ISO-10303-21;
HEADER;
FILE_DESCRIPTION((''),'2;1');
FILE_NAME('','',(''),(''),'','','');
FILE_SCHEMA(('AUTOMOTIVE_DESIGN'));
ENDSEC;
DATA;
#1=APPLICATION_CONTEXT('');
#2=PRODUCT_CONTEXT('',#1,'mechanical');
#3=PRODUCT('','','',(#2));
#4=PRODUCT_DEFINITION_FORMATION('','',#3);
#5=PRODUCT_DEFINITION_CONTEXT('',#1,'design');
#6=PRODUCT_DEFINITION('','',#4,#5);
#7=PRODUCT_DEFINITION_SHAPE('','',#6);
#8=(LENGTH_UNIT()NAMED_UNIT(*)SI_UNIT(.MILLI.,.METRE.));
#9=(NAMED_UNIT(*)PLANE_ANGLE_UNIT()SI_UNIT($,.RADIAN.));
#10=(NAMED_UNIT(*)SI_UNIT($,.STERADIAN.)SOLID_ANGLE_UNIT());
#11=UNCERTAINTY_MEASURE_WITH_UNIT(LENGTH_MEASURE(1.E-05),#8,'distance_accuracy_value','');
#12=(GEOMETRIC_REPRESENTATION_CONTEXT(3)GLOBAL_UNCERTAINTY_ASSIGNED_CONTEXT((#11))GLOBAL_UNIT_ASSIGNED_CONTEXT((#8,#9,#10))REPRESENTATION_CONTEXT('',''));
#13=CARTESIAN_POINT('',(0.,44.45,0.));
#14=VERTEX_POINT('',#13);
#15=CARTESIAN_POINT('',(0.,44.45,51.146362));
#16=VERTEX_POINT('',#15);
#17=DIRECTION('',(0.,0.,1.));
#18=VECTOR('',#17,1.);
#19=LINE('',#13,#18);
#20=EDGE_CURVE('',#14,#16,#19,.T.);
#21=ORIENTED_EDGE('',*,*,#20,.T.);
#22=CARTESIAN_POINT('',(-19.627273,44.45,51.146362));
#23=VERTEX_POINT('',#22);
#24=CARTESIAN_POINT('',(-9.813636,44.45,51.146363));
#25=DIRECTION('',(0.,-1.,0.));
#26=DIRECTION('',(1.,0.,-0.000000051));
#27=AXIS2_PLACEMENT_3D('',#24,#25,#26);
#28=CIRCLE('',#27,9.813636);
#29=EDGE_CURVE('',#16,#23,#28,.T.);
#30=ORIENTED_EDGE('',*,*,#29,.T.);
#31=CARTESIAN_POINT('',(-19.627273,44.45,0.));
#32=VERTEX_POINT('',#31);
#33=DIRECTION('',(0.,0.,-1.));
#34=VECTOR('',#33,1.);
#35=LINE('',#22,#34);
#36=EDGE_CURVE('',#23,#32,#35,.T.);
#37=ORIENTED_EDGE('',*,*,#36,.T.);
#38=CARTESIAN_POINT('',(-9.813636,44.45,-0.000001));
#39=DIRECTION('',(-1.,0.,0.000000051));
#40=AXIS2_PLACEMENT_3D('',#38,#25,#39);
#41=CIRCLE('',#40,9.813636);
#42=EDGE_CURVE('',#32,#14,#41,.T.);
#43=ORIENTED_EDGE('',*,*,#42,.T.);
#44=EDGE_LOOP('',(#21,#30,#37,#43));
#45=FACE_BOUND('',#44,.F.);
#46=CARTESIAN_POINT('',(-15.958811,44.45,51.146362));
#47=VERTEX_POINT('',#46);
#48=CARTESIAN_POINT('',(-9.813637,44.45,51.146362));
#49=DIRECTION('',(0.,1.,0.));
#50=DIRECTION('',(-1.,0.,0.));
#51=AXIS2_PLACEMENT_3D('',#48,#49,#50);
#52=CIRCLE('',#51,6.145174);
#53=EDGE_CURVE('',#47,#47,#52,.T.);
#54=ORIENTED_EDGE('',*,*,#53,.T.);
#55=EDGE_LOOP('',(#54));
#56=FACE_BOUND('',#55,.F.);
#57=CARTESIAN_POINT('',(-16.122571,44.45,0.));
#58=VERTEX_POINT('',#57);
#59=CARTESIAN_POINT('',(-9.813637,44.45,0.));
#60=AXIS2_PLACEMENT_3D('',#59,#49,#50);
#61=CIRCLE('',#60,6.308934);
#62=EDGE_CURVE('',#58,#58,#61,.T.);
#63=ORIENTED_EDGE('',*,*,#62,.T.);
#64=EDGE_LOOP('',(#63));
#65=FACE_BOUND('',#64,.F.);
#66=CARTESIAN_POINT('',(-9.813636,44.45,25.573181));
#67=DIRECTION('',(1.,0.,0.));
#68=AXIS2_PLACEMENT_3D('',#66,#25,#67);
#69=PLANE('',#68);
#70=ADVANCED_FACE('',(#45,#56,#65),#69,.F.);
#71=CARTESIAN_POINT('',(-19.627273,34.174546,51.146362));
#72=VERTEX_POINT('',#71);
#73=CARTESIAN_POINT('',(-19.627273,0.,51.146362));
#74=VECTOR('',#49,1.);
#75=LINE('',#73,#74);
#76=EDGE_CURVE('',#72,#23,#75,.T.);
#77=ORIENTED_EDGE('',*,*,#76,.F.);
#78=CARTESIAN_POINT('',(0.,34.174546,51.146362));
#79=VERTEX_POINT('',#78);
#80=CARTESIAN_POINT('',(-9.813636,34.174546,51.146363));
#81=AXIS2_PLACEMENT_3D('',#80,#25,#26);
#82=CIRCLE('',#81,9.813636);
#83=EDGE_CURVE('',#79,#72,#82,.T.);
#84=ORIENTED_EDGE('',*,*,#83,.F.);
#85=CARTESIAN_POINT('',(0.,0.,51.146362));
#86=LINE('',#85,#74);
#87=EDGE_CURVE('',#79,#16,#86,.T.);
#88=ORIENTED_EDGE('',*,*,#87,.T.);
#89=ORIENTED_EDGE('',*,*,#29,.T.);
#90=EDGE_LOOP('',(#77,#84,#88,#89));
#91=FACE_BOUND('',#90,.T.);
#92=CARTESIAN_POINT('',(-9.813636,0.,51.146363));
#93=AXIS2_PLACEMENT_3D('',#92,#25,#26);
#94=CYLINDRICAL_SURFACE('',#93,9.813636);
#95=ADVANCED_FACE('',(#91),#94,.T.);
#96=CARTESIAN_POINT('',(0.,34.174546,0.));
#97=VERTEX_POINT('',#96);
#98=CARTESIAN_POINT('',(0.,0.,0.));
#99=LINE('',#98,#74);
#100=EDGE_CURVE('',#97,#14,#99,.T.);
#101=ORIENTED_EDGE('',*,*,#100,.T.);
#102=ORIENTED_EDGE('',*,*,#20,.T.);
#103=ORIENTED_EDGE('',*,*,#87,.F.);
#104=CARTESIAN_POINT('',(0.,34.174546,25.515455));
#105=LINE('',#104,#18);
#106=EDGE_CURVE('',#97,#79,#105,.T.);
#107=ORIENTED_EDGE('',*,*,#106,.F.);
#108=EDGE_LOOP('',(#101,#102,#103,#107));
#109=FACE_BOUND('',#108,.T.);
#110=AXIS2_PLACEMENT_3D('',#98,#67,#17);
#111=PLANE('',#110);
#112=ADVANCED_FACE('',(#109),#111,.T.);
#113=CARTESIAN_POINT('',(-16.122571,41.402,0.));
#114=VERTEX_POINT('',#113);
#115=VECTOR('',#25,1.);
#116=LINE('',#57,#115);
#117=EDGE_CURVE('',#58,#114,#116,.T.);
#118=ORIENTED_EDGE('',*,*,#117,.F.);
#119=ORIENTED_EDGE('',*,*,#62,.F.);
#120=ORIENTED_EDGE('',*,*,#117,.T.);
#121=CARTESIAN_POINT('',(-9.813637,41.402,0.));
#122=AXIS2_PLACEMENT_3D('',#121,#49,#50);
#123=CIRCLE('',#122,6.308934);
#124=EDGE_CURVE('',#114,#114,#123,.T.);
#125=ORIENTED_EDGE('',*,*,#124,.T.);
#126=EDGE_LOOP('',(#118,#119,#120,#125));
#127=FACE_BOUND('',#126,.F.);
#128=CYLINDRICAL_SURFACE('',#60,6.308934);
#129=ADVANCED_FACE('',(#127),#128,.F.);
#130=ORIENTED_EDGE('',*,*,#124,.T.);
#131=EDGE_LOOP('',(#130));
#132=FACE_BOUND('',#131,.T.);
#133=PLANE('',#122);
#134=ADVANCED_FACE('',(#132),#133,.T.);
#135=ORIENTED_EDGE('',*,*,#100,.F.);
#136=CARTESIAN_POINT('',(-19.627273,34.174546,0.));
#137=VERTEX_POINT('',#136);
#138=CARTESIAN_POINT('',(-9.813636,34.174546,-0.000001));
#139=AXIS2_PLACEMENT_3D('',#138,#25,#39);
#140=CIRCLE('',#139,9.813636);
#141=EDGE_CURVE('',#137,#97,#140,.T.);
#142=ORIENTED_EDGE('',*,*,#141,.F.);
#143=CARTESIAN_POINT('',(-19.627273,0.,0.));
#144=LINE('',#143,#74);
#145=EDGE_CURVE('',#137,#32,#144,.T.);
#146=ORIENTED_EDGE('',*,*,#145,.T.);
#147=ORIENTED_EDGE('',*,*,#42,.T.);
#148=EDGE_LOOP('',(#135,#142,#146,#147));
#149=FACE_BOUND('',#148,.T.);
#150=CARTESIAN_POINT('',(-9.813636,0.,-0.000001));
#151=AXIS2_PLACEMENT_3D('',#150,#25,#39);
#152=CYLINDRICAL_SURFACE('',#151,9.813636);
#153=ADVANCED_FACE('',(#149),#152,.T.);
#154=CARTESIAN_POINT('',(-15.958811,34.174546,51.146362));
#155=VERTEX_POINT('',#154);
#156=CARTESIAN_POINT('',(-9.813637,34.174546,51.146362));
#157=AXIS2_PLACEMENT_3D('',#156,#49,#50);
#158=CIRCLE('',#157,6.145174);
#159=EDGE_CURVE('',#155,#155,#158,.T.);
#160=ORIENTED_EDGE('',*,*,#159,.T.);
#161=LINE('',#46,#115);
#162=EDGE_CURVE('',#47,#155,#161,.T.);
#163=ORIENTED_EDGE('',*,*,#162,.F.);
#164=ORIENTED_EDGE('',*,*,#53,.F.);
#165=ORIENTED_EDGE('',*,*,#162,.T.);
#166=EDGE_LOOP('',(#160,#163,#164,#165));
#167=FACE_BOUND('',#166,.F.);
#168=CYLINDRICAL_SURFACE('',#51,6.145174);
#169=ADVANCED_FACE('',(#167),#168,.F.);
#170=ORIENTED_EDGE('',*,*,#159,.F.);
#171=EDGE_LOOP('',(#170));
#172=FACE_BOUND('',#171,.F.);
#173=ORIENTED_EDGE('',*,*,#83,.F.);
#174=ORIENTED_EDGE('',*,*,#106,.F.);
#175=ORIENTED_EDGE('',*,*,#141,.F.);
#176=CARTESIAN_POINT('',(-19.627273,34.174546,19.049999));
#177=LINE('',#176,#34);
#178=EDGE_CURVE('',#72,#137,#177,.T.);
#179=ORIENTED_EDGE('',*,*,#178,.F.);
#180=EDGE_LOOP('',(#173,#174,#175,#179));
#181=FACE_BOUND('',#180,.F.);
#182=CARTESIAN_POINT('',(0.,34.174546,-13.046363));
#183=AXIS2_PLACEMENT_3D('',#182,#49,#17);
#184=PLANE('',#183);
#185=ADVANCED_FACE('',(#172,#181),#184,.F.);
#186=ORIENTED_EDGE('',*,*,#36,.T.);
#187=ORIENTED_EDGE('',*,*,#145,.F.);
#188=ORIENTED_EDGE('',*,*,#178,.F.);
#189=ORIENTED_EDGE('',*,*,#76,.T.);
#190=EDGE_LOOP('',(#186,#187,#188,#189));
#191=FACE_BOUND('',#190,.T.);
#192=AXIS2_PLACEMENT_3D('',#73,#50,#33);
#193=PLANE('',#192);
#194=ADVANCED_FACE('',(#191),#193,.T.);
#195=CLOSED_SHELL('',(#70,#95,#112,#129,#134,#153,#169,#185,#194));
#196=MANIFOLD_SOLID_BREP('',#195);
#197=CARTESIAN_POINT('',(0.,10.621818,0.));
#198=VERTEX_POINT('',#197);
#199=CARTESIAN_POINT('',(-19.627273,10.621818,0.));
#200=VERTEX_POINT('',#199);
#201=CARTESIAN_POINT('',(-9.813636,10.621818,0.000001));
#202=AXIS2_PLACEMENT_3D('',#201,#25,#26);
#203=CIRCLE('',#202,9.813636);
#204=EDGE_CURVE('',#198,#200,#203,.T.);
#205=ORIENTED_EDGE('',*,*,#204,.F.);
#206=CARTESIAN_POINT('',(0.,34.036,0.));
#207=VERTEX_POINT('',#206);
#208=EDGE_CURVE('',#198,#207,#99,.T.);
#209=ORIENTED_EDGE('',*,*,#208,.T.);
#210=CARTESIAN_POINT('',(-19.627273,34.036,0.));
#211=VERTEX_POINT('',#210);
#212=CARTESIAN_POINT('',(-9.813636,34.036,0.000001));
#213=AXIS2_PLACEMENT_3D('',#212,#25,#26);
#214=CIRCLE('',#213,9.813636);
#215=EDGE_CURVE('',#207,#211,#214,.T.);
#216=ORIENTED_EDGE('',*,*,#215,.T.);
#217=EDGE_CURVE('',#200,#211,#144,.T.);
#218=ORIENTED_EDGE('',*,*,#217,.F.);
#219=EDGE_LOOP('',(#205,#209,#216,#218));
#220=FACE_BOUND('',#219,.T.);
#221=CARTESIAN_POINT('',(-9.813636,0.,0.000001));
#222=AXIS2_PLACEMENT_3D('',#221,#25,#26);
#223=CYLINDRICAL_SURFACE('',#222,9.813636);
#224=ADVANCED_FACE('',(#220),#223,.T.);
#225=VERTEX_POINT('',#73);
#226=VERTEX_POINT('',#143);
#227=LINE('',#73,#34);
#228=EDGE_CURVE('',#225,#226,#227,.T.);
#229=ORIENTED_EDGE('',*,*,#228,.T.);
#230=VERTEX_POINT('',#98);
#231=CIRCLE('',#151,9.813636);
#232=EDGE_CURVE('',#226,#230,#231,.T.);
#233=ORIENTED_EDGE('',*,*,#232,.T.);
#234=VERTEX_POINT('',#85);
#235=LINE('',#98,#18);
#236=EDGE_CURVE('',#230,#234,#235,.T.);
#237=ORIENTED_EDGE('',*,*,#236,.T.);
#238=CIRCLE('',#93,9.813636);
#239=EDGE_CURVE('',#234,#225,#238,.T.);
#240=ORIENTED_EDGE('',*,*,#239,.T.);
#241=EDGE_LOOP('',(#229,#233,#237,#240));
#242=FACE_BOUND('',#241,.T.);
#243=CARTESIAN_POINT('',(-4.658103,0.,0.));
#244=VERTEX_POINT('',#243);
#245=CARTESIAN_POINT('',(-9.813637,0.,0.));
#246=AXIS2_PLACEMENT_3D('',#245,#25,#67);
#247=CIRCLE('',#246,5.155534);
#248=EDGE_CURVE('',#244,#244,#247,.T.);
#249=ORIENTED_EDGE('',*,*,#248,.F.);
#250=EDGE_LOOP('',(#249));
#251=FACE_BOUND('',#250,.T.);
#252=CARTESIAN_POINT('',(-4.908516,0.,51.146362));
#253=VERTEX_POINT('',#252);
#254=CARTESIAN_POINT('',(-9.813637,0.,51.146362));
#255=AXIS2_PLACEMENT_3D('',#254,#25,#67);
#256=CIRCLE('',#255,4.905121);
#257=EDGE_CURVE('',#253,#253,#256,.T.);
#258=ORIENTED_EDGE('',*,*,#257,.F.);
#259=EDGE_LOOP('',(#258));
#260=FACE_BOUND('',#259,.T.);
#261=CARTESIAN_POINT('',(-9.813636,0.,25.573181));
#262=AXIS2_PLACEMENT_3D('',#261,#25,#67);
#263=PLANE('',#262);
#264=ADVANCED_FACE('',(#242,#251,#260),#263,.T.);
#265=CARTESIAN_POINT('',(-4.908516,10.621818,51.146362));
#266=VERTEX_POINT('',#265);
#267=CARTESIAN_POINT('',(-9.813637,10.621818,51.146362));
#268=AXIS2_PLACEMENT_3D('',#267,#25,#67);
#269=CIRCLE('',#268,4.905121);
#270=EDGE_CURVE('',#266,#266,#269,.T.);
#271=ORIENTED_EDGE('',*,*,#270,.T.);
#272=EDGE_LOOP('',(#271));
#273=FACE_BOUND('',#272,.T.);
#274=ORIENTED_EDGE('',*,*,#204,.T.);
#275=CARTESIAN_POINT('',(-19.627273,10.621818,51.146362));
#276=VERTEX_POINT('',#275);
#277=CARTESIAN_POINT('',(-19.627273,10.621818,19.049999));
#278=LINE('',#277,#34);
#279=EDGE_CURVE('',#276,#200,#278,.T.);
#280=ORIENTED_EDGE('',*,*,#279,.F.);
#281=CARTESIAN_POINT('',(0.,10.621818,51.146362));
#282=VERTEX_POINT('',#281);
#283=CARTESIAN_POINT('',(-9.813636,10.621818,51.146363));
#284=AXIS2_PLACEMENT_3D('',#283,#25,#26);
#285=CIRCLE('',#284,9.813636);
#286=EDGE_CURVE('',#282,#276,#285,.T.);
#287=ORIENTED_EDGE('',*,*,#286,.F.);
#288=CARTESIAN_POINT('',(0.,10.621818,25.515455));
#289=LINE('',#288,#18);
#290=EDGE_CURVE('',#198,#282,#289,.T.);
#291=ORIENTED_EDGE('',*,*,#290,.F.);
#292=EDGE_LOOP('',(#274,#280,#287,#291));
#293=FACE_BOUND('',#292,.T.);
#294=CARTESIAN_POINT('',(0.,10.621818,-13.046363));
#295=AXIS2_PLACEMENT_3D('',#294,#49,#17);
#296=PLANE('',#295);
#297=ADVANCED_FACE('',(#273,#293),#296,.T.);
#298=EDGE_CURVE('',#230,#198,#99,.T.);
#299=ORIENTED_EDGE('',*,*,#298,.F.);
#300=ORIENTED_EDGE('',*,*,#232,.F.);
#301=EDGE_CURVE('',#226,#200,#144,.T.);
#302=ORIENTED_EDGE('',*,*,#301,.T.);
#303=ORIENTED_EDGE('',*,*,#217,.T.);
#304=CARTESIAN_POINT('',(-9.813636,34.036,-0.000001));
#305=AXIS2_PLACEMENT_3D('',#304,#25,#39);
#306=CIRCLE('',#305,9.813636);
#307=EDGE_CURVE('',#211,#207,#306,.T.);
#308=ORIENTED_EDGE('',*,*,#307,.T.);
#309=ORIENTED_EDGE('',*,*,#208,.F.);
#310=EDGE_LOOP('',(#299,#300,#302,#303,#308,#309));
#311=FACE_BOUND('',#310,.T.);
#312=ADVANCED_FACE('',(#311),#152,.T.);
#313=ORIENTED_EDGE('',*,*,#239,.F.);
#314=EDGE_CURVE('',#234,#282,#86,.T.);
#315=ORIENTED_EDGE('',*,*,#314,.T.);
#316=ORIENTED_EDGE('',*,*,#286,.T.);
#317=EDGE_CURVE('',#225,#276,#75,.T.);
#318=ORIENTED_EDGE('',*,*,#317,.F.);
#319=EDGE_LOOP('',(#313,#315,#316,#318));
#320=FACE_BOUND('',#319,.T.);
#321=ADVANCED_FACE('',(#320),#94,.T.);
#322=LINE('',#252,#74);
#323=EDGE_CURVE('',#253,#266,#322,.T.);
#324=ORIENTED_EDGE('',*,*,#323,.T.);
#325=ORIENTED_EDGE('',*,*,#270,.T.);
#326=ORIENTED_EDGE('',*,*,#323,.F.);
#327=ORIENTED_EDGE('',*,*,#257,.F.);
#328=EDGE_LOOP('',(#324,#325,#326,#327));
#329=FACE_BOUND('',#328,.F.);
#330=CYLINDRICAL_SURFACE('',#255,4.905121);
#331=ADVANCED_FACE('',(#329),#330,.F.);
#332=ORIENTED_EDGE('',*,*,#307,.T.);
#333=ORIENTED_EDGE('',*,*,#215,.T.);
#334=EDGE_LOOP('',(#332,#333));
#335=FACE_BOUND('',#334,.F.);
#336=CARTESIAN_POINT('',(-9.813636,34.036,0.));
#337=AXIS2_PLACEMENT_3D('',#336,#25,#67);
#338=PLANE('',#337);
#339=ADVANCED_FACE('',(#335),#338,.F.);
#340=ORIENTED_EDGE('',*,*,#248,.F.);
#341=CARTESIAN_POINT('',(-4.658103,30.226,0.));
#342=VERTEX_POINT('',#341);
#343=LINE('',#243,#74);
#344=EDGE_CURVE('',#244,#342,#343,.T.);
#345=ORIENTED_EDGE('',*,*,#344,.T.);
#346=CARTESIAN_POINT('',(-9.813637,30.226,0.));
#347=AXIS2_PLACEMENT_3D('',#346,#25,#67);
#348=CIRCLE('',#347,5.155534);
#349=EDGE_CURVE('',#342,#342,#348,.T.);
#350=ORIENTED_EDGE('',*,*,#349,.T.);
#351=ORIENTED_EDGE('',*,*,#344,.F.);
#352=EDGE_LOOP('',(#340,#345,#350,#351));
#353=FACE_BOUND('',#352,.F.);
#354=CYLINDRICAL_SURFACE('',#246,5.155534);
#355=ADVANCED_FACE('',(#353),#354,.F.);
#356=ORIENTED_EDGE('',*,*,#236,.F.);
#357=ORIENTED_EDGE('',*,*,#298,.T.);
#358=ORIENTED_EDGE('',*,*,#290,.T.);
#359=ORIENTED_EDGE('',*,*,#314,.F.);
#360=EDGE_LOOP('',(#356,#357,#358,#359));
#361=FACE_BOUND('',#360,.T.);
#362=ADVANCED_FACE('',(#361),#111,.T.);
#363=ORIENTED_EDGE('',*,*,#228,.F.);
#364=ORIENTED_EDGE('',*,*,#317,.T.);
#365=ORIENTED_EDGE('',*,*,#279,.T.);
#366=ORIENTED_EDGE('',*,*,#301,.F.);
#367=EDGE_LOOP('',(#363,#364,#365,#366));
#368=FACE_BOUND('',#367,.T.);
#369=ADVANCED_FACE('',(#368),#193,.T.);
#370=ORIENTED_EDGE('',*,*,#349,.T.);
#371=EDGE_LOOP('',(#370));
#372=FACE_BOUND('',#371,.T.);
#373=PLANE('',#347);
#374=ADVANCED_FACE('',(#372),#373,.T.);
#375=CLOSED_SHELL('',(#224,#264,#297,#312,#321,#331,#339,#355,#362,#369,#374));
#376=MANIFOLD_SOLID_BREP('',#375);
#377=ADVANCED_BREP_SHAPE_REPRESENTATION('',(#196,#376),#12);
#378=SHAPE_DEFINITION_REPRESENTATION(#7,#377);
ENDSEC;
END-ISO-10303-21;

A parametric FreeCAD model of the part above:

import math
import FreeCAD as App
import Part
import Sketcher
from FreeCAD import Vector
Q = App.Units.Quantity

doc = App.newDocument("Part")
params = doc.addObject("Spreadsheet::Sheet", "Params")
for row, (alias, value) in enumerate([
    ("pad1_length", "1.75 in"),
    ("pocket1_length", "4 in"),
    ("pocket2_length", "2.95 in"),
    ("pad2_length", "1.34 in"),
    ("pocket3_length", "1.19 in"),
    ("pocket4_length", "0.93 in"),
    ("pocket5_length", "0.12 in"),
], start=1):
    params.set(f"A{row}", alias)
    params.set(f"B{row}", "=" + value)
    params.setAlias(f"B{row}", alias)

body = doc.addObject("PartDesign::Body", "Body")
body.AllowCompound = True

# Sketch on XZ plane
sketch1 = body.newObject("Sketcher::SketchObject", "Sketch")
sketch1.AttachmentSupport = (doc.getObject("XZ_Plane"), [""])
sketch1.MapMode = "FlatFace"
sketch1.addGeometry([
    Part.ArcOfCircle(Part.Circle(Vector(-10, 0, 0), Vector(0, 0, 1), 10), math.radians(180), math.radians(360)),
    Part.LineSegment(Vector(0, 0, 0), Vector(0, 51, 0)),
    Part.ArcOfCircle(Part.Circle(Vector(-10, 51, 0), Vector(0, 0, 1), 10), math.radians(0), math.radians(180)),
    Part.LineSegment(Vector(-20, 51, 0), Vector(-20, 0, 0)),
], False)
sketch1.addConstraint([
    Sketcher.Constraint("Tangent", 0, 2, 1, 1),
    Sketcher.Constraint("Tangent", 1, 2, 2, 1),
    Sketcher.Constraint("Tangent", 2, 2, 3, 1),
    Sketcher.Constraint("Tangent", 3, 2, 0, 1),
    Sketcher.Constraint("Vertical", 1),
    Sketcher.Constraint("Vertical", 3),
    Sketcher.Constraint("Coincident", 0, 2, -1, 1),
    Sketcher.Constraint("Radius", 0, Q("9.813636 mm")),
    Sketcher.Constraint("DistanceY", 1, 1, 1, 2, Q("51.146362 mm")),
])
pad1 = body.newObject("PartDesign::Pad", "Pad")
pad1.Profile = sketch1
pad1.setExpression("Length", "Params.pad1_length")
pad1.Reversed = True

# Sketch on YZ plane
sketch2 = body.newObject("Sketcher::SketchObject", "Sketch001")
sketch2.AttachmentSupport = (doc.getObject("YZ_Plane"), [""])
sketch2.MapMode = "FlatFace"
sketch2.addGeometry([
    Part.LineSegment(Vector(11, 64, 0), Vector(11, -13, 0)),
    Part.LineSegment(Vector(11, -13, 0), Vector(34, -13, 0)),
    Part.LineSegment(Vector(34, -13, 0), Vector(34, 64, 0)),
    Part.LineSegment(Vector(34, 64, 0), Vector(11, 64, 0)),
], False)
sketch2.addConstraint([
    Sketcher.Constraint("Coincident", 0, 2, 1, 1),
    Sketcher.Constraint("Coincident", 1, 2, 2, 1),
    Sketcher.Constraint("Coincident", 2, 2, 3, 1),
    Sketcher.Constraint("Coincident", 3, 2, 0, 1),
    Sketcher.Constraint("Vertical", 0),
    Sketcher.Constraint("Horizontal", 1),
    Sketcher.Constraint("Vertical", 2),
    Sketcher.Constraint("Horizontal", 3),
    Sketcher.Constraint("DistanceX", 1, 1, 1, 2, Q("23.552729 mm")),
    Sketcher.Constraint("DistanceY", 0, 2, 0, 1, Q("77.123636 mm")),
    Sketcher.Constraint("DistanceX", -1, 1, 0, 2, Q("10.621818 mm")),
    Sketcher.Constraint("DistanceY", 0, 2, -1, 1, Q("13.046363 mm")),
])
pocket1 = body.newObject("PartDesign::Pocket", "Pocket")
pocket1.Profile = sketch2
pocket1.setExpression("Length", "Params.pocket1_length")

# Sketch on XZ plane
sketch3 = body.newObject("Sketcher::SketchObject", "Sketch002")
sketch3.AttachmentSupport = (doc.getObject("XZ_Plane"), [""])
sketch3.MapMode = "FlatFace"
sketch3.addGeometry(Part.Circle(Vector(-9.8, 51.1, 0), Vector(0, 0, 1), 4.9), False)
sketch3.addConstraint([
    Sketcher.Constraint("Diameter", 0, Q("9.810242 mm")),
    Sketcher.Constraint("DistanceX", 0, 3, -1, 1, Q("9.813637 mm")),
    Sketcher.Constraint("DistanceY", -1, 1, 0, 3, Q("51.146362 mm")),
])
pocket2 = body.newObject("PartDesign::Pocket", "Pocket001")
pocket2.Profile = sketch3
pocket2.setExpression("Length", "Params.pocket2_length")

# Sketch on XZ plane
sketch4 = body.newObject("Sketcher::SketchObject", "Sketch003")
sketch4.AttachmentSupport = (doc.getObject("XZ_Plane"), [""])
sketch4.MapMode = "FlatFace"
sketch4.addGeometry([
    Part.ArcOfCircle(Part.Circle(Vector(-10, 0, 0), Vector(0, 0, 1), 10), math.radians(180), math.radians(360)),
    Part.ArcOfCircle(Part.Circle(Vector(-10, 0, 0), Vector(0, 0, 1), 10), math.radians(0), math.radians(180)),
], False)
sketch4.addConstraint([
    Sketcher.Constraint("Tangent", 0, 1, 1, 2),
    Sketcher.Constraint("Coincident", 1, 1, 0, 2),
    Sketcher.Constraint("Coincident", 1, 1, -1, 1),
    Sketcher.Constraint("PointOnObject", 0, 3, -1),
    Sketcher.Constraint("PointOnObject", 0, 1, -1),
    Sketcher.Constraint("Radius", 0, Q("9.813636 mm")),
])
pad2 = body.newObject("PartDesign::Pad", "Pad001")
pad2.Profile = sketch4
pad2.setExpression("Length", "Params.pad2_length")
pad2.Reversed = True

# Sketch on XZ plane
sketch5 = body.newObject("Sketcher::SketchObject", "Sketch004")
sketch5.AttachmentSupport = (doc.getObject("XZ_Plane"), [""])
sketch5.MapMode = "FlatFace"
sketch5.addGeometry(Part.Circle(Vector(-10, 0, 0), Vector(0, 0, 1), 5), False)
sketch5.addConstraint([
    Sketcher.Constraint("PointOnObject", 0, 3, -1),
    Sketcher.Constraint("Diameter", 0, Q("10.311068 mm")),
    Sketcher.Constraint("DistanceX", 0, 3, -1, 1, Q("9.813637 mm")),
])
pocket3 = body.newObject("PartDesign::Pocket", "Pocket002")
pocket3.Profile = sketch5
pocket3.setExpression("Length", "Params.pocket3_length")

# Sketch on XZ plane
sketch6 = body.newObject("Sketcher::SketchObject", "Sketch005")
sketch6.AttachmentSupport = (doc.getObject("XZ_Plane"), [""])
sketch6.MapMode = "FlatFace"
sketch6.AttachmentOffset = App.Placement(Vector(0, 0, -1.75 * 25.4), App.Rotation())
sketch6.addGeometry([
    Part.Circle(Vector(-9.8, 51.1, 0), Vector(0, 0, 1), 6.1),
    Part.Circle(Vector(-9.8, 51.1, 0), Vector(0, 0, 1), 4.9),
], False)
sketch6.addConstraint([
    Sketcher.Constraint("Coincident", 1, 3, 0, 3),
    Sketcher.Constraint("Diameter", 0, Q("12.290348 mm")),
    Sketcher.Constraint("Diameter", 1, Q("9.810242 mm")),
    Sketcher.Constraint("DistanceX", 0, 3, -1, 1, Q("9.813637 mm")),
    Sketcher.Constraint("DistanceY", -1, 1, 0, 3, Q("51.146362 mm")),
])
pocket4 = body.newObject("PartDesign::Pocket", "Pocket003")
pocket4.Profile = sketch6
pocket4.setExpression("Length", "Params.pocket4_length")
pocket4.Reversed = True

# Sketch on XZ plane
sketch7 = body.newObject("Sketcher::SketchObject", "Sketch006")
sketch7.AttachmentSupport = (doc.getObject("XZ_Plane"), [""])
sketch7.MapMode = "FlatFace"
sketch7.AttachmentOffset = App.Placement(Vector(0, 0, -1.75 * 25.4), App.Rotation())
sketch7.addGeometry(Part.Circle(Vector(-10, 0, 0), Vector(0, 0, 1), 6), False)
sketch7.addConstraint([
    Sketcher.Constraint("PointOnObject", 0, 3, -1),
    Sketcher.Constraint("Diameter", 0, Q("12.617868 mm")),
    Sketcher.Constraint("DistanceX", 0, 3, -1, 1, Q("9.813637 mm")),
])
pocket5 = body.newObject("PartDesign::Pocket", "Pocket004")
pocket5.Profile = sketch7
pocket5.setExpression("Length", "Params.pocket5_length")
pocket5.Reversed = True

doc.recompute()
